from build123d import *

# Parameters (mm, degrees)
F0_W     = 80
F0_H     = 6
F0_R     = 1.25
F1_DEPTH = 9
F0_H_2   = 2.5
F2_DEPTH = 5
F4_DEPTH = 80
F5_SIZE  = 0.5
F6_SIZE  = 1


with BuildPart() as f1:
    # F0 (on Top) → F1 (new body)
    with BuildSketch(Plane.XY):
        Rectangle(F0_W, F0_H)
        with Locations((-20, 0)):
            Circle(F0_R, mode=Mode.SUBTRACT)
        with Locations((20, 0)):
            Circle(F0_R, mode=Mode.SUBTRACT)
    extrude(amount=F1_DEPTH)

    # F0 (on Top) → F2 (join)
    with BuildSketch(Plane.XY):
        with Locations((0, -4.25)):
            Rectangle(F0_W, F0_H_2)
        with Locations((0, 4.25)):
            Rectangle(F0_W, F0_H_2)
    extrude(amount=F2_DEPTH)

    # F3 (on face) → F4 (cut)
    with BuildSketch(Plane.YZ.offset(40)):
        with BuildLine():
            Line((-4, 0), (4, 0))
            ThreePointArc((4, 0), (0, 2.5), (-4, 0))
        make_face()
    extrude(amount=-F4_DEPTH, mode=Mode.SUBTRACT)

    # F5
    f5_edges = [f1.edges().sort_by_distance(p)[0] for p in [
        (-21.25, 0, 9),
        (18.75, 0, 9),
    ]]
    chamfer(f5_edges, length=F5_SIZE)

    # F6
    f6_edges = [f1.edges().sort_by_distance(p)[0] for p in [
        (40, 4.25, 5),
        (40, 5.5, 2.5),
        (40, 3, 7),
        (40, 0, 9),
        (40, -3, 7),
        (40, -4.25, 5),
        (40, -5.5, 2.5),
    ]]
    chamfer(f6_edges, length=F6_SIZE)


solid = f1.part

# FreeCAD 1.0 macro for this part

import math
import FreeCAD as App
import Part
import Sketcher

V = App.Vector


def edges_at(feature, points):
    """Names of the edges that pass closest to the given points."""
    edges = feature.Shape.Edges
    near = lambda p: min(range(len(edges)), key=lambda i: edges[i].distToShape(Part.Vertex(*p))[0])
    return sorted({f"Edge{near(p) + 1}" for p in points})


def add_polygon(sketch, points):
    """Adds a closed chain of lines whose ends are joined by coincident constraints."""
    first, n = sketch.GeometryCount, len(points)
    for a, b in zip(points, points[1:] + points[:1]):
        sketch.addGeometry(Part.LineSegment(App.Vector(*a, 0), App.Vector(*b, 0)), False)
    for i in range(n):
        sketch.addConstraint(Sketcher.Constraint("Coincident", first + i, 2, first + (i + 1) % n, 1))

doc = App.newDocument("Part")
params = doc.addObject("Spreadsheet::Sheet", "Params")
for row, (alias, value) in enumerate([
    ("sketch1_diameter", "2.5 mm"),
    ("sketch1_width", "80 mm"),
    ("sketch1_height", "6 mm"),
    ("pad1_length", "9 mm"),
    ("sketch2_width", "80 mm"),
    ("sketch2_height", "2.5 mm"),
    ("pad2_length", "5 mm"),
    ("sketch3_width", "8 mm"),
    ("sketch3_radius", "4.45 mm"),
    ("pocket1_length", "80 mm"),
    ("chamfer_size", "0.5 mm"),
    ("chamfer2_size", "1 mm"),
], start=1):
    params.set(f"A{row}", alias)
    params.set(f"B{row}", "=" + value)
    params.setAlias(f"B{row}", alias)

body = doc.addObject("PartDesign::Body", "Body")

# Sketch on XY plane
sketch1 = body.newObject("Sketcher::SketchObject", "Sketch")
sketch1.AttachmentSupport = (doc.getObject("XY_Plane"), [""])
sketch1.MapMode = "FlatFace"
add_polygon(sketch1, [(-40, 3), (-40, -3), (40, -3), (40, 3)])  # lines 0-3
sketch1.addGeometry(Part.Circle(V(-20, 0, 0), V(0, 0, 1), 1.2), False)  # 4
sketch1.addGeometry(Part.Circle(V(20, 0, 0), V(0, 0, 1), 1.2), False)  # 5
sketch1.addConstraint([
    Sketcher.Constraint("Vertical", 0),
    Sketcher.Constraint("Horizontal", 1),
    Sketcher.Constraint("Vertical", 2),
    Sketcher.Constraint("Horizontal", 3),
    Sketcher.Constraint("Equal", 4, 5),
    Sketcher.Constraint("Symmetric", 4, 3, 5, 3, -1, 1),
    Sketcher.Constraint("Symmetric", 0, 2, 2, 2, -1, 1),
    Sketcher.Constraint("PointOnObject", 4, 3, -1),
    Sketcher.Constraint("Diameter", 4, 2.5),
    Sketcher.Constraint("DistanceX", 1, 1, 1, 2, 80.0),
    Sketcher.Constraint("DistanceY", 0, 2, 0, 1, 6.0),
    Sketcher.Constraint("DistanceX", 4, 3, -1, 1, 20.0),
])
sketch1.setExpression("Constraints[12]", "Params.sketch1_diameter")
sketch1.setExpression("Constraints[13]", "Params.sketch1_width")
sketch1.setExpression("Constraints[14]", "Params.sketch1_height")
pad1 = body.newObject("PartDesign::Pad", "Pad")
pad1.Profile = sketch1
pad1.setExpression("Length", "Params.pad1_length")

# Sketch on XY plane
sketch2 = body.newObject("Sketcher::SketchObject", "Sketch001")
sketch2.AttachmentSupport = (doc.getObject("XY_Plane"), [""])
sketch2.MapMode = "FlatFace"
add_polygon(sketch2, [(-40, -3), (-40, -5.5), (40, -5.5), (40, -3)])  # lines 0-3
add_polygon(sketch2, [(-40, 5.5), (-40, 3), (40, 3), (40, 5.5)])  # lines 4-7
sketch2.addConstraint([
    Sketcher.Constraint("Vertical", 0),
    Sketcher.Constraint("Horizontal", 1),
    Sketcher.Constraint("Vertical", 2),
    Sketcher.Constraint("Horizontal", 3),
    Sketcher.Constraint("Vertical", 4),
    Sketcher.Constraint("Horizontal", 5),
    Sketcher.Constraint("Vertical", 6),
    Sketcher.Constraint("Horizontal", 7),
    Sketcher.Constraint("Symmetric", 2, 2, 4, 2, -1, 1),
    Sketcher.Constraint("Symmetric", 0, 2, 6, 2, -1, 1),
    Sketcher.Constraint("Vertical", 3, 2, 4, 2),
    Sketcher.Constraint("DistanceX", 1, 1, 1, 2, 80.0),
    Sketcher.Constraint("DistanceY", 0, 2, 0, 1, 2.5),
    Sketcher.Constraint("DistanceY", 2, 2, -1, 1, 3.0),
])
sketch2.setExpression("Constraints[19]", "Params.sketch2_width")
sketch2.setExpression("Constraints[20]", "Params.sketch2_height")
pad2 = body.newObject("PartDesign::Pad", "Pad001")
pad2.Profile = sketch2
pad2.setExpression("Length", "Params.pad2_length")

# Sketch on YZ plane
sketch3 = body.newObject("Sketcher::SketchObject", "Sketch002")
sketch3.AttachmentSupport = (doc.getObject("YZ_Plane"), [""])
sketch3.MapMode = "FlatFace"
sketch3.AttachmentOffset = App.Placement(V(0, 0, 40), App.Rotation())
sketch3.addGeometry([
    Part.LineSegment(V(-4, 0, 0), V(4, 0, 0)),
    Part.ArcOfCircle(Part.Circle(V(0, -1.9, 0), V(0, 0, 1), 4.5), math.radians(26), math.radians(154)),
], False)
sketch3.addConstraint([
    Sketcher.Constraint("Coincident", 0, 1, 1, 2),
    Sketcher.Constraint("Coincident", 1, 1, 0, 2),
    Sketcher.Constraint("Horizontal", 0),
    Sketcher.Constraint("Symmetric", 0, 1, 1, 1, -1, 1),
    Sketcher.Constraint("DistanceX", 0, 1, 0, 2, 8.0),
    Sketcher.Constraint("Radius", 1, 4.45),
])
sketch3.setExpression("Constraints[4]", "Params.sketch3_width")
sketch3.setExpression("Constraints[5]", "Params.sketch3_radius")
pocket1 = body.newObject("PartDesign::Pocket", "Pocket")
pocket1.Profile = sketch3
pocket1.setExpression("Length", "Params.pocket1_length")
doc.recompute()

chamfer = body.newObject("PartDesign::Chamfer", "Chamfer")
chamfer.Base = (pocket1, edges_at(pocket1, [(-21.25, 0, 9), (18.75, 0, 9)]))
chamfer.setExpression("Size", "Params.chamfer_size")
doc.recompute()

chamfer2 = body.newObject("PartDesign::Chamfer", "Chamfer001")
chamfer2.Base = (chamfer, edges_at(chamfer, [
    (40, 4.25, 5),
    (40, 5.5, 2.5),
    (40, 3, 7),
    (40, 0, 9),
    (40, -3, 7),
    (40, -4.25, 5),
    (40, -5.5, 2.5),
]))
chamfer2.setExpression("Size", "Params.chamfer2_size")

doc.recompute()
